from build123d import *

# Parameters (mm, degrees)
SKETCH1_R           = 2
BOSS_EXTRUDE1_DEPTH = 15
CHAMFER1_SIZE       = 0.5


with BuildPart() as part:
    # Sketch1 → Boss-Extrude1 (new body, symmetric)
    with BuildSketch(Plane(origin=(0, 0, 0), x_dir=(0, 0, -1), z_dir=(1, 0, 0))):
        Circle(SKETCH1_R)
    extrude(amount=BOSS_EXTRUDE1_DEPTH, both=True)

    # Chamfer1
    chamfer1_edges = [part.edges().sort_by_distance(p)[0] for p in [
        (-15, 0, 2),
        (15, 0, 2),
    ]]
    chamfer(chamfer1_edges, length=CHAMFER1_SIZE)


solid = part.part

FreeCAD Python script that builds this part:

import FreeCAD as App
import Part
import Sketcher


def edges_at(feature, points):
    """Names of the edges that pass closest to the given points."""
    edges = feature.Shape.Edges
    near = lambda p: min(range(len(edges)), key=lambda i: edges[i].distToShape(Part.Vertex(*p))[0])
    return sorted({f"Edge{near(p) + 1}" for p in points})

doc = App.newDocument("Part")
body = doc.addObject("PartDesign::Body", "Body")

sketch1 = doc.addObject("Sketcher::SketchObject", "Sketch")
body.addObject(sketch1)
sketch1.AttachmentSupport = (doc.YZ_Plane, [""])
sketch1.MapMode = "FlatFace"
sketch1.addGeometry(Part.Circle(App.Vector(0, 0, 0), App.Vector(0, 0, 1), 2), False)
sketch1.addConstraint([
    Sketcher.Constraint("Coincident", 0, 3, -1, 1),
    Sketcher.Constraint("Diameter", 0, 4.0),
])
pad1 = doc.addObject("PartDesign::Pad", "Pad")
body.addObject(pad1)
pad1.Profile = sketch1
pad1.Length = 30
pad1.Midplane = True
doc.recompute()

chamfer = doc.addObject("PartDesign::Chamfer", "Chamfer")
body.addObject(chamfer)
chamfer.Base = (pad1, edges_at(pad1, [(-15, 0, 2), (15, 0, 2)]))
chamfer.Size = 0.5

doc.recompute()
